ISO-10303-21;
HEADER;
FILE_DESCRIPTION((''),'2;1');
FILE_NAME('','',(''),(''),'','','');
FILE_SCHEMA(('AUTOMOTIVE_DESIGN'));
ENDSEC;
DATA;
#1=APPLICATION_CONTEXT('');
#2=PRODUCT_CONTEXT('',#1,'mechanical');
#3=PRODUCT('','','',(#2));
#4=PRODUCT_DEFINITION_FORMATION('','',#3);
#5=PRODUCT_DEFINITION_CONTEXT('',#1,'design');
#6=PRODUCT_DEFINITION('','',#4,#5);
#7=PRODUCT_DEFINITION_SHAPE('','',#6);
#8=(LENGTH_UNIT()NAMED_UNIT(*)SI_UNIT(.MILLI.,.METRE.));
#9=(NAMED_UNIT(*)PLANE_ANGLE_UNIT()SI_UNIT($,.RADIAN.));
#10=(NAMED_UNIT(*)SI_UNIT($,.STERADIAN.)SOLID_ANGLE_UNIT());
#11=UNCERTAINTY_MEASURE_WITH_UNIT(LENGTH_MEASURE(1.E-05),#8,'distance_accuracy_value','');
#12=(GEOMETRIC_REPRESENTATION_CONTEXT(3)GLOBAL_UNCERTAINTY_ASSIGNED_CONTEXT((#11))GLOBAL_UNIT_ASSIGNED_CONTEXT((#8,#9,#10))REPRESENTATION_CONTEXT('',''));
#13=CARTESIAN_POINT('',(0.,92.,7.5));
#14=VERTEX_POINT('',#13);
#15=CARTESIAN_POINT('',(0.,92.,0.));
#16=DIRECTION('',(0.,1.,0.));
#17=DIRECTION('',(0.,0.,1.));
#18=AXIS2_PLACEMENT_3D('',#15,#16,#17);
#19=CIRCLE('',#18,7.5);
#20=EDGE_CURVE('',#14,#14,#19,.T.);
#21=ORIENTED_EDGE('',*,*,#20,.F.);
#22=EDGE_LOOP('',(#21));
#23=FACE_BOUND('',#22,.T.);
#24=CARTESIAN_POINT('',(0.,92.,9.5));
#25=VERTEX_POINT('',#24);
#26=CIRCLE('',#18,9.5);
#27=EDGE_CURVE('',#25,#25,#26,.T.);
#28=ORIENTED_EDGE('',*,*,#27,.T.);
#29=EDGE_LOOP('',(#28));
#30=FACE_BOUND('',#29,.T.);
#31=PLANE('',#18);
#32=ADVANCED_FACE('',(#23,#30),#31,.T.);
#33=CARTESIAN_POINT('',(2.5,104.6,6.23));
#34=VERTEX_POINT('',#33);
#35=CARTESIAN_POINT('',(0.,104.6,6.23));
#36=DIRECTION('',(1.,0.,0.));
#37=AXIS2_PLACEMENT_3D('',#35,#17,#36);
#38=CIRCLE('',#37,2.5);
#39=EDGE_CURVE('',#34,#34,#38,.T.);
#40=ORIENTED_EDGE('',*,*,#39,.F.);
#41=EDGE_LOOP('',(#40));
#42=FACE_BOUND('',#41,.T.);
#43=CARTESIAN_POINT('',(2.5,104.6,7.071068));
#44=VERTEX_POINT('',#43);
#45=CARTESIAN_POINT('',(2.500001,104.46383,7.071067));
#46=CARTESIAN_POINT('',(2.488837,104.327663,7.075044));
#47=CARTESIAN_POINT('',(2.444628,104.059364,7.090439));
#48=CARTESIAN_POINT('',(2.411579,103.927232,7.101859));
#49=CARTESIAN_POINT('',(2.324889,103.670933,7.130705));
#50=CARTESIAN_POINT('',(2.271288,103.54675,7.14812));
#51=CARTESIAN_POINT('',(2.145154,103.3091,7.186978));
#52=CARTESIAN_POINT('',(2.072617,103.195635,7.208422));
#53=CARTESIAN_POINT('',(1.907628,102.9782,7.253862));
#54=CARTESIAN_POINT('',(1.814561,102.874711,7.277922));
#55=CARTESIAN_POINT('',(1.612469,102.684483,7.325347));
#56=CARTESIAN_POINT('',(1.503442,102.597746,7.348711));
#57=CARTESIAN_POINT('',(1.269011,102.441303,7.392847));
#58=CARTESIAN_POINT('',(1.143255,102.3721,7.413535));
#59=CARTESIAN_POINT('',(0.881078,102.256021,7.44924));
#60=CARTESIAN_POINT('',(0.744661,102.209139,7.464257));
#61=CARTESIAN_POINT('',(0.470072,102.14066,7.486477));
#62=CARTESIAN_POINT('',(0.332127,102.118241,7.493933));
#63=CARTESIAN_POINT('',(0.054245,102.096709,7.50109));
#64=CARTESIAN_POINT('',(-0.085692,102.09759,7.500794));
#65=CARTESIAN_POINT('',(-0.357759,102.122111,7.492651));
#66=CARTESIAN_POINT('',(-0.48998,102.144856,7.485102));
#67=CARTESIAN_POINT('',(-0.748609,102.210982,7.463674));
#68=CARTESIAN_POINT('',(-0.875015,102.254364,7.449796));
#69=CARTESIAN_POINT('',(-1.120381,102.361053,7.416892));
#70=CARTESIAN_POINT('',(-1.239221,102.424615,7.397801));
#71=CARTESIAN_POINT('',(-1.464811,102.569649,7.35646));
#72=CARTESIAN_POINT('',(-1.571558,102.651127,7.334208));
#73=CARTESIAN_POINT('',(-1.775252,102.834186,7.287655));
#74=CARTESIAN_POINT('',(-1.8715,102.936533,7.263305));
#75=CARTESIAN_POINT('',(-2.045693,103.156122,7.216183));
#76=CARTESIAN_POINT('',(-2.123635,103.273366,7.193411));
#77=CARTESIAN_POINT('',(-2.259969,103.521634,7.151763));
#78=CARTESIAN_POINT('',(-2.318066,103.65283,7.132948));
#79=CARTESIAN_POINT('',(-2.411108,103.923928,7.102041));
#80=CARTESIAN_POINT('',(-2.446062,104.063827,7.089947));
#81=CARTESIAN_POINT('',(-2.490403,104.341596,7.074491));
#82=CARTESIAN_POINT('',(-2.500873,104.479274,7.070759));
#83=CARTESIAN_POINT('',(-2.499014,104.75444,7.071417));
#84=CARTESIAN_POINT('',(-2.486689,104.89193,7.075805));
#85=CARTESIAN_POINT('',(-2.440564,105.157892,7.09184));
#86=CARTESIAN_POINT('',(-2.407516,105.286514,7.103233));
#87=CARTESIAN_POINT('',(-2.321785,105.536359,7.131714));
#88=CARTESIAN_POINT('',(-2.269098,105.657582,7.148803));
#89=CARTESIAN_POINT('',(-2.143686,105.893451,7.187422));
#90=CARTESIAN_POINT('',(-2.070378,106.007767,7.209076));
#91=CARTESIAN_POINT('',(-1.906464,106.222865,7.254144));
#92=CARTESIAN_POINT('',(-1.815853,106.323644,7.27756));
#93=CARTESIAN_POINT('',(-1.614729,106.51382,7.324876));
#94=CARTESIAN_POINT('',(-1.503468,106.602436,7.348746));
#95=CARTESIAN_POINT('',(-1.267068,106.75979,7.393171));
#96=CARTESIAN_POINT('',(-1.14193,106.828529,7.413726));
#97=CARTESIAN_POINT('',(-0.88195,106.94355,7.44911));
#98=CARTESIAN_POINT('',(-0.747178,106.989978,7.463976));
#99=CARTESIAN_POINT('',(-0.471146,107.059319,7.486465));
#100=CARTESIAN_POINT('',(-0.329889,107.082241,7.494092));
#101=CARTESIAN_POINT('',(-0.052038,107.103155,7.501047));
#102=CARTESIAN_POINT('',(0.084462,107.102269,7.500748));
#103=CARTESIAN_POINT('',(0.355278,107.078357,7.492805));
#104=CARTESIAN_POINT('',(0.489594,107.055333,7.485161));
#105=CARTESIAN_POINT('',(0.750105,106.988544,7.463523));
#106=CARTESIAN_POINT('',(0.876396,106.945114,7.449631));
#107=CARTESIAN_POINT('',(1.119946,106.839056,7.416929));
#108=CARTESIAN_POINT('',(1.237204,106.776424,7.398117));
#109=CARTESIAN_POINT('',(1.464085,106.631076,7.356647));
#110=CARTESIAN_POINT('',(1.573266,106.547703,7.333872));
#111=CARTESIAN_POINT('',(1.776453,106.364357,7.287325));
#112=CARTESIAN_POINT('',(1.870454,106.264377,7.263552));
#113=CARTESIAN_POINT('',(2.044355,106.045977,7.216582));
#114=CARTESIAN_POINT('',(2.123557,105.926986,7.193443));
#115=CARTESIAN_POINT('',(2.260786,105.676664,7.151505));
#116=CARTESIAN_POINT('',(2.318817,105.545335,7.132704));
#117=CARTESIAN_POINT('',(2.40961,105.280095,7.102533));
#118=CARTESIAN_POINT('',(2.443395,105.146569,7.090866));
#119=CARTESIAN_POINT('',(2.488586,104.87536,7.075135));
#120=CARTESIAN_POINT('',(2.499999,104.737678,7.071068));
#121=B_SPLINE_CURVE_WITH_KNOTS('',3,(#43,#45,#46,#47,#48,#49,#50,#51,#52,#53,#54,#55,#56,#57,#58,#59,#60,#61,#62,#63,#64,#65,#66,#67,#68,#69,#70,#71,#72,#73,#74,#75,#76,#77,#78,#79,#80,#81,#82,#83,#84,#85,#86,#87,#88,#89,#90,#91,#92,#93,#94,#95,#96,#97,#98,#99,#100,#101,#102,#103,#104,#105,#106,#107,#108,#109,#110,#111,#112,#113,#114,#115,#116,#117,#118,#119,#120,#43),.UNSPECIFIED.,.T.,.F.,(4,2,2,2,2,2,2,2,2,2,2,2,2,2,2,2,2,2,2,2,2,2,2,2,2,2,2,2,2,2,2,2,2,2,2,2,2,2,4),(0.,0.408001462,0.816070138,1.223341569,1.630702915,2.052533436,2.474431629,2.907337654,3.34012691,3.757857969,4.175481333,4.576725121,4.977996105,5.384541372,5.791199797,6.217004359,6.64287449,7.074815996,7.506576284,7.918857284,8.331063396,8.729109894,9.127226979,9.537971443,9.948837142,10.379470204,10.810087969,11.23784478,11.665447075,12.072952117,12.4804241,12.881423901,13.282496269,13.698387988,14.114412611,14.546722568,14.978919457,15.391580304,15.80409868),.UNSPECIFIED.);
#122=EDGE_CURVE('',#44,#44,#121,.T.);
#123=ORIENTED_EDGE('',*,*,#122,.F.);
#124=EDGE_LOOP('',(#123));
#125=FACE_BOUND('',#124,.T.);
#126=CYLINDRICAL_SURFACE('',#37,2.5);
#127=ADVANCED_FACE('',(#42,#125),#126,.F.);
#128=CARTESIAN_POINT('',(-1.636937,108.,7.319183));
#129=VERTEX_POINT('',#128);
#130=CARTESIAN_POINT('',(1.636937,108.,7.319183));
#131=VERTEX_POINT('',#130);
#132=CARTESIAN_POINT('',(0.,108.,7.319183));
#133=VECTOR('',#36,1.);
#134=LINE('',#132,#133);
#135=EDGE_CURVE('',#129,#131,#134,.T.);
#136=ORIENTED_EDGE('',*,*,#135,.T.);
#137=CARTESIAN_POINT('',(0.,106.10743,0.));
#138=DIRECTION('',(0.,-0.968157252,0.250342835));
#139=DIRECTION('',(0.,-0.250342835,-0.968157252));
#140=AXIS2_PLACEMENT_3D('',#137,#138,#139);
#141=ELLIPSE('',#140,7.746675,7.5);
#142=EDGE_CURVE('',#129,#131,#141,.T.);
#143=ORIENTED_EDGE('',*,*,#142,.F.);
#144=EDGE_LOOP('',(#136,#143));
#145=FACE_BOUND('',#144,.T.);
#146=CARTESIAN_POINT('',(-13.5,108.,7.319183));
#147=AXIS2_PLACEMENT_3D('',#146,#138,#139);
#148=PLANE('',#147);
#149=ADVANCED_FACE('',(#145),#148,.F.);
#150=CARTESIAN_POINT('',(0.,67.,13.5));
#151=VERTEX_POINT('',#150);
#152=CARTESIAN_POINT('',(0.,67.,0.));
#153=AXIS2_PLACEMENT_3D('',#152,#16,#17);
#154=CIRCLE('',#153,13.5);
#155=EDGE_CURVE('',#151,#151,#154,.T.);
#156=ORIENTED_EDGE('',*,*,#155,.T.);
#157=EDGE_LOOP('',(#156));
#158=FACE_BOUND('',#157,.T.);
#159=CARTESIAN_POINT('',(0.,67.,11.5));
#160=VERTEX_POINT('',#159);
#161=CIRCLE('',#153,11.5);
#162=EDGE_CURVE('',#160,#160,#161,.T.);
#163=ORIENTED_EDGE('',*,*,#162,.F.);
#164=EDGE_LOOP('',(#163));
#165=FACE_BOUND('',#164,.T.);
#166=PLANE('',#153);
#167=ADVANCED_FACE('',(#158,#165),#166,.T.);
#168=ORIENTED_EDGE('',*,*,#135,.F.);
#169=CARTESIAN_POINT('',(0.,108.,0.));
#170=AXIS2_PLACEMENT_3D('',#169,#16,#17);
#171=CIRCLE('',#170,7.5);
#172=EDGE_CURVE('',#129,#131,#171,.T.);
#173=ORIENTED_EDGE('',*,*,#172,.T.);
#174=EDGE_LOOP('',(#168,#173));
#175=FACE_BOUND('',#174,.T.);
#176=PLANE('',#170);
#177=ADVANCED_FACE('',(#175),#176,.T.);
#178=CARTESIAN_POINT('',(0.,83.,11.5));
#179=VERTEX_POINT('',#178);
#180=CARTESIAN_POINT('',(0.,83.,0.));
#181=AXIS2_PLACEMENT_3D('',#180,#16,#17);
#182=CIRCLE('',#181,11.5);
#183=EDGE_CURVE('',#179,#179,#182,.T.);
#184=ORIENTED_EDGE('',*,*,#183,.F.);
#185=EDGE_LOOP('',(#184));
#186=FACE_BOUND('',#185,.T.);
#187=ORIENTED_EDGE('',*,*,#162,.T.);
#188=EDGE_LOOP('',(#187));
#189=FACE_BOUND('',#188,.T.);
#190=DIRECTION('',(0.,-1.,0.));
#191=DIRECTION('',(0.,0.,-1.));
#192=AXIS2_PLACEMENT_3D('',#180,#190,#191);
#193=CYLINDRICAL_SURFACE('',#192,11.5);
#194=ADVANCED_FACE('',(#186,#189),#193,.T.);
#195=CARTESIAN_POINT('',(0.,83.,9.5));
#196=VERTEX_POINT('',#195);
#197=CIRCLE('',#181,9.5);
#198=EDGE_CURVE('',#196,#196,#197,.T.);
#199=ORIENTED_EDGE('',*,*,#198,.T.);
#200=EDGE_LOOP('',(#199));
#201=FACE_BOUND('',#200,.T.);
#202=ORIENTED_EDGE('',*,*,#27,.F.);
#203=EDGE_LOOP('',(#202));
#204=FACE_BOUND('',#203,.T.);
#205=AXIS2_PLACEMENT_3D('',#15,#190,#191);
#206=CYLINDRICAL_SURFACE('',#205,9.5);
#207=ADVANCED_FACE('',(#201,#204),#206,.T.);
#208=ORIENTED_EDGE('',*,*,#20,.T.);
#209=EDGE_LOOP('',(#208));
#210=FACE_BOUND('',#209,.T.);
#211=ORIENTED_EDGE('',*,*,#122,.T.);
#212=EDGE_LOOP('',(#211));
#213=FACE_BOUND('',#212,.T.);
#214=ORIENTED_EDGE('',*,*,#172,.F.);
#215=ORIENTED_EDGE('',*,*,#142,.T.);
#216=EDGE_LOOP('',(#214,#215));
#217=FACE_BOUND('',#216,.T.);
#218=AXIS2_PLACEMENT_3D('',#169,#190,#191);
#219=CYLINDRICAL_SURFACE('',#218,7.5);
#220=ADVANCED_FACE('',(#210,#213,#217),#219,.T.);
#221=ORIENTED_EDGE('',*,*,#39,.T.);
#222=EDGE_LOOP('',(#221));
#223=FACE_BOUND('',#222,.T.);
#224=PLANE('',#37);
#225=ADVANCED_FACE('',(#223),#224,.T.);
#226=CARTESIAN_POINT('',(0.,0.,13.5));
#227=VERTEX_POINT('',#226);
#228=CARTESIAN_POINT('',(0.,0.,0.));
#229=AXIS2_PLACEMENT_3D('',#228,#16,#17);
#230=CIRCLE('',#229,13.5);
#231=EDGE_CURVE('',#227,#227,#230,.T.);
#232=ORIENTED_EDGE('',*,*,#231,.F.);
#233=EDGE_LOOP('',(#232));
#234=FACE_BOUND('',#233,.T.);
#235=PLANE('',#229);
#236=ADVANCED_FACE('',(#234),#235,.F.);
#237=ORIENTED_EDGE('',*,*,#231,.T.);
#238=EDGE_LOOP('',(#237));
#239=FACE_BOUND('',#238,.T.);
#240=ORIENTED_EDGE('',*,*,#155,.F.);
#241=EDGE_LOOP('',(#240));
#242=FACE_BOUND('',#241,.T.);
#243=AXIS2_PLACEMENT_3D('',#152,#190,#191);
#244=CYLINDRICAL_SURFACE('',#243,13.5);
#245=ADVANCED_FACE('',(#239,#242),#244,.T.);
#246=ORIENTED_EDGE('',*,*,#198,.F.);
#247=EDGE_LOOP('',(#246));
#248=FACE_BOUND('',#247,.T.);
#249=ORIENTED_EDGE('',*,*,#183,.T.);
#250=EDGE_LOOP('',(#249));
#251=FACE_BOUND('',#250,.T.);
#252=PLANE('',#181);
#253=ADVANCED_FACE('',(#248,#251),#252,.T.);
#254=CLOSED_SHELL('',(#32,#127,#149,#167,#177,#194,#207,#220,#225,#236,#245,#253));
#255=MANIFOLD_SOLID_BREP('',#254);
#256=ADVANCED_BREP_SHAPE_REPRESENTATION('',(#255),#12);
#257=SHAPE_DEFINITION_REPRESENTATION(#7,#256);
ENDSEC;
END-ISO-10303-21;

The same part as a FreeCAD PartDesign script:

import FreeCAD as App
import Part
import Sketcher
Q = App.Units.Quantity


def add_polygon(sketch, points):
    """Adds a closed chain of lines whose ends are joined by coincident constraints."""
    first, n = sketch.GeometryCount, len(points)
    for a, b in zip(points, points[1:] + points[:1]):
        sketch.addGeometry(Part.LineSegment(App.Vector(*a, 0), App.Vector(*b, 0)), False)
    for i in range(n):
        sketch.addConstraint(Sketcher.Constraint("Coincident", first + i, 2, first + (i + 1) % n, 1))

doc = App.newDocument("Part")
body = doc.addObject("PartDesign::Body", "Body")

sketch1 = body.newObject("Sketcher::SketchObject", "Sketch")
sketch1.AttachmentSupport = (doc.getObject("XZ_Plane"), [""])
sketch1.MapMode = "FlatFace"
sketch1.addGeometry(Part.Circle(App.Vector(0, 0, 0), App.Vector(0, 0, 1), 14), False)
sketch1.addConstraint([
    Sketcher.Constraint("Coincident", 0, 3, -1, 1),
    Sketcher.Constraint("Diameter", 0, Q("27 mm")),
])
pad1 = body.newObject("PartDesign::Pad", "Pad")
pad1.Profile = sketch1
pad1.Length = 67
pad1.Reversed = True

sketch2 = body.newObject("Sketcher::SketchObject", "Sketch001")
sketch2.AttachmentSupport = (doc.getObject("XZ_Plane"), [""])
sketch2.MapMode = "FlatFace"
sketch2.AttachmentOffset = App.Placement(App.Vector(0, 0, -67), App.Rotation())
sketch2.addGeometry(Part.Circle(App.Vector(0, 0, 0), App.Vector(0, 0, 1), 12), False)
sketch2.addConstraint([
    Sketcher.Constraint("Coincident", 0, 3, -1, 1),
    Sketcher.Constraint("Diameter", 0, Q("23 mm")),
])
pad2 = body.newObject("PartDesign::Pad", "Pad001")
pad2.Profile = sketch2
pad2.Length = 16
pad2.Reversed = True

sketch3 = body.newObject("Sketcher::SketchObject", "Sketch002")
sketch3.AttachmentSupport = (doc.getObject("XZ_Plane"), [""])
sketch3.MapMode = "FlatFace"
sketch3.AttachmentOffset = App.Placement(App.Vector(0, 0, -83), App.Rotation())
sketch3.addGeometry(Part.Circle(App.Vector(0, 0, 0), App.Vector(0, 0, 1), 10), False)
sketch3.addConstraint([
    Sketcher.Constraint("Coincident", 0, 3, -1, 1),
    Sketcher.Constraint("Diameter", 0, Q("19 mm")),
])
pad3 = body.newObject("PartDesign::Pad", "Pad002")
pad3.Profile = sketch3
pad3.Length = 9
pad3.Reversed = True

sketch4 = body.newObject("Sketcher::SketchObject", "Sketch003")
sketch4.AttachmentSupport = (doc.getObject("XZ_Plane"), [""])
sketch4.MapMode = "FlatFace"
sketch4.AttachmentOffset = App.Placement(App.Vector(0, 0, -92), App.Rotation())
sketch4.addGeometry(Part.Circle(App.Vector(0, 0, 0), App.Vector(0, 0, 1), 8), False)
sketch4.addConstraint([
    Sketcher.Constraint("Coincident", 0, 3, -1, 1),
    Sketcher.Constraint("Diameter", 0, Q("15 mm")),
])
pad4 = body.newObject("PartDesign::Pad", "Pad003")
pad4.Profile = sketch4
pad4.Length = 16
pad4.Reversed = True

sketch5 = body.newObject("Sketcher::SketchObject", "Sketch004")
sketch5.AttachmentSupport = (doc.getObject("YZ_Plane"), [""])
sketch5.MapMode = "FlatFace"
sketch5.AttachmentOffset = App.Placement(App.Vector(0, 0, 7.5), App.Rotation())
add_polygon(sketch5, [(108, 7.3), (104, -8.2), (108, -8)])
sketch5.addConstraint([
    Sketcher.Constraint("Vertical", 2),
    Sketcher.Constraint("DistanceX", -1, 1, 0, 2, Q("104 mm")),
    Sketcher.Constraint("DistanceX", -1, 1, 1, 2, Q("108 mm")),
    Sketcher.Constraint("DistanceY", 2, 1, 2, 2, Q("15.31372 mm")),
    Sketcher.Constraint("Distance", 0, Q("15.978089 mm")),
    Sketcher.Constraint("DistanceY", 0, 2, -1, 1, Q("8.15012 mm")),
])
pocket1 = body.newObject("PartDesign::Pocket", "Pocket")
pocket1.Profile = sketch5
pocket1.Type = "ThroughAll"

sketch6 = body.newObject("Sketcher::SketchObject", "Sketch005")
sketch6.AttachmentSupport = (doc.getObject("XY_Plane"), [""])
sketch6.MapMode = "FlatFace"
sketch6.AttachmentOffset = App.Placement(App.Vector(0, 0, 7.5), App.Rotation())
sketch6.addGeometry(Part.Circle(App.Vector(0, 104.6, 0), App.Vector(0, 0, 1), 2.5), False)
sketch6.addConstraint([
    Sketcher.Constraint("PointOnObject", 0, 3, -2),
    Sketcher.Constraint("Diameter", 0, Q("5 mm")),
    Sketcher.Constraint("DistanceY", -1, 1, 0, 3, Q("104.6 mm")),
])
pocket2 = body.newObject("PartDesign::Pocket", "Pocket001")
pocket2.Profile = sketch6
pocket2.Length = 1.27

doc.recompute()
